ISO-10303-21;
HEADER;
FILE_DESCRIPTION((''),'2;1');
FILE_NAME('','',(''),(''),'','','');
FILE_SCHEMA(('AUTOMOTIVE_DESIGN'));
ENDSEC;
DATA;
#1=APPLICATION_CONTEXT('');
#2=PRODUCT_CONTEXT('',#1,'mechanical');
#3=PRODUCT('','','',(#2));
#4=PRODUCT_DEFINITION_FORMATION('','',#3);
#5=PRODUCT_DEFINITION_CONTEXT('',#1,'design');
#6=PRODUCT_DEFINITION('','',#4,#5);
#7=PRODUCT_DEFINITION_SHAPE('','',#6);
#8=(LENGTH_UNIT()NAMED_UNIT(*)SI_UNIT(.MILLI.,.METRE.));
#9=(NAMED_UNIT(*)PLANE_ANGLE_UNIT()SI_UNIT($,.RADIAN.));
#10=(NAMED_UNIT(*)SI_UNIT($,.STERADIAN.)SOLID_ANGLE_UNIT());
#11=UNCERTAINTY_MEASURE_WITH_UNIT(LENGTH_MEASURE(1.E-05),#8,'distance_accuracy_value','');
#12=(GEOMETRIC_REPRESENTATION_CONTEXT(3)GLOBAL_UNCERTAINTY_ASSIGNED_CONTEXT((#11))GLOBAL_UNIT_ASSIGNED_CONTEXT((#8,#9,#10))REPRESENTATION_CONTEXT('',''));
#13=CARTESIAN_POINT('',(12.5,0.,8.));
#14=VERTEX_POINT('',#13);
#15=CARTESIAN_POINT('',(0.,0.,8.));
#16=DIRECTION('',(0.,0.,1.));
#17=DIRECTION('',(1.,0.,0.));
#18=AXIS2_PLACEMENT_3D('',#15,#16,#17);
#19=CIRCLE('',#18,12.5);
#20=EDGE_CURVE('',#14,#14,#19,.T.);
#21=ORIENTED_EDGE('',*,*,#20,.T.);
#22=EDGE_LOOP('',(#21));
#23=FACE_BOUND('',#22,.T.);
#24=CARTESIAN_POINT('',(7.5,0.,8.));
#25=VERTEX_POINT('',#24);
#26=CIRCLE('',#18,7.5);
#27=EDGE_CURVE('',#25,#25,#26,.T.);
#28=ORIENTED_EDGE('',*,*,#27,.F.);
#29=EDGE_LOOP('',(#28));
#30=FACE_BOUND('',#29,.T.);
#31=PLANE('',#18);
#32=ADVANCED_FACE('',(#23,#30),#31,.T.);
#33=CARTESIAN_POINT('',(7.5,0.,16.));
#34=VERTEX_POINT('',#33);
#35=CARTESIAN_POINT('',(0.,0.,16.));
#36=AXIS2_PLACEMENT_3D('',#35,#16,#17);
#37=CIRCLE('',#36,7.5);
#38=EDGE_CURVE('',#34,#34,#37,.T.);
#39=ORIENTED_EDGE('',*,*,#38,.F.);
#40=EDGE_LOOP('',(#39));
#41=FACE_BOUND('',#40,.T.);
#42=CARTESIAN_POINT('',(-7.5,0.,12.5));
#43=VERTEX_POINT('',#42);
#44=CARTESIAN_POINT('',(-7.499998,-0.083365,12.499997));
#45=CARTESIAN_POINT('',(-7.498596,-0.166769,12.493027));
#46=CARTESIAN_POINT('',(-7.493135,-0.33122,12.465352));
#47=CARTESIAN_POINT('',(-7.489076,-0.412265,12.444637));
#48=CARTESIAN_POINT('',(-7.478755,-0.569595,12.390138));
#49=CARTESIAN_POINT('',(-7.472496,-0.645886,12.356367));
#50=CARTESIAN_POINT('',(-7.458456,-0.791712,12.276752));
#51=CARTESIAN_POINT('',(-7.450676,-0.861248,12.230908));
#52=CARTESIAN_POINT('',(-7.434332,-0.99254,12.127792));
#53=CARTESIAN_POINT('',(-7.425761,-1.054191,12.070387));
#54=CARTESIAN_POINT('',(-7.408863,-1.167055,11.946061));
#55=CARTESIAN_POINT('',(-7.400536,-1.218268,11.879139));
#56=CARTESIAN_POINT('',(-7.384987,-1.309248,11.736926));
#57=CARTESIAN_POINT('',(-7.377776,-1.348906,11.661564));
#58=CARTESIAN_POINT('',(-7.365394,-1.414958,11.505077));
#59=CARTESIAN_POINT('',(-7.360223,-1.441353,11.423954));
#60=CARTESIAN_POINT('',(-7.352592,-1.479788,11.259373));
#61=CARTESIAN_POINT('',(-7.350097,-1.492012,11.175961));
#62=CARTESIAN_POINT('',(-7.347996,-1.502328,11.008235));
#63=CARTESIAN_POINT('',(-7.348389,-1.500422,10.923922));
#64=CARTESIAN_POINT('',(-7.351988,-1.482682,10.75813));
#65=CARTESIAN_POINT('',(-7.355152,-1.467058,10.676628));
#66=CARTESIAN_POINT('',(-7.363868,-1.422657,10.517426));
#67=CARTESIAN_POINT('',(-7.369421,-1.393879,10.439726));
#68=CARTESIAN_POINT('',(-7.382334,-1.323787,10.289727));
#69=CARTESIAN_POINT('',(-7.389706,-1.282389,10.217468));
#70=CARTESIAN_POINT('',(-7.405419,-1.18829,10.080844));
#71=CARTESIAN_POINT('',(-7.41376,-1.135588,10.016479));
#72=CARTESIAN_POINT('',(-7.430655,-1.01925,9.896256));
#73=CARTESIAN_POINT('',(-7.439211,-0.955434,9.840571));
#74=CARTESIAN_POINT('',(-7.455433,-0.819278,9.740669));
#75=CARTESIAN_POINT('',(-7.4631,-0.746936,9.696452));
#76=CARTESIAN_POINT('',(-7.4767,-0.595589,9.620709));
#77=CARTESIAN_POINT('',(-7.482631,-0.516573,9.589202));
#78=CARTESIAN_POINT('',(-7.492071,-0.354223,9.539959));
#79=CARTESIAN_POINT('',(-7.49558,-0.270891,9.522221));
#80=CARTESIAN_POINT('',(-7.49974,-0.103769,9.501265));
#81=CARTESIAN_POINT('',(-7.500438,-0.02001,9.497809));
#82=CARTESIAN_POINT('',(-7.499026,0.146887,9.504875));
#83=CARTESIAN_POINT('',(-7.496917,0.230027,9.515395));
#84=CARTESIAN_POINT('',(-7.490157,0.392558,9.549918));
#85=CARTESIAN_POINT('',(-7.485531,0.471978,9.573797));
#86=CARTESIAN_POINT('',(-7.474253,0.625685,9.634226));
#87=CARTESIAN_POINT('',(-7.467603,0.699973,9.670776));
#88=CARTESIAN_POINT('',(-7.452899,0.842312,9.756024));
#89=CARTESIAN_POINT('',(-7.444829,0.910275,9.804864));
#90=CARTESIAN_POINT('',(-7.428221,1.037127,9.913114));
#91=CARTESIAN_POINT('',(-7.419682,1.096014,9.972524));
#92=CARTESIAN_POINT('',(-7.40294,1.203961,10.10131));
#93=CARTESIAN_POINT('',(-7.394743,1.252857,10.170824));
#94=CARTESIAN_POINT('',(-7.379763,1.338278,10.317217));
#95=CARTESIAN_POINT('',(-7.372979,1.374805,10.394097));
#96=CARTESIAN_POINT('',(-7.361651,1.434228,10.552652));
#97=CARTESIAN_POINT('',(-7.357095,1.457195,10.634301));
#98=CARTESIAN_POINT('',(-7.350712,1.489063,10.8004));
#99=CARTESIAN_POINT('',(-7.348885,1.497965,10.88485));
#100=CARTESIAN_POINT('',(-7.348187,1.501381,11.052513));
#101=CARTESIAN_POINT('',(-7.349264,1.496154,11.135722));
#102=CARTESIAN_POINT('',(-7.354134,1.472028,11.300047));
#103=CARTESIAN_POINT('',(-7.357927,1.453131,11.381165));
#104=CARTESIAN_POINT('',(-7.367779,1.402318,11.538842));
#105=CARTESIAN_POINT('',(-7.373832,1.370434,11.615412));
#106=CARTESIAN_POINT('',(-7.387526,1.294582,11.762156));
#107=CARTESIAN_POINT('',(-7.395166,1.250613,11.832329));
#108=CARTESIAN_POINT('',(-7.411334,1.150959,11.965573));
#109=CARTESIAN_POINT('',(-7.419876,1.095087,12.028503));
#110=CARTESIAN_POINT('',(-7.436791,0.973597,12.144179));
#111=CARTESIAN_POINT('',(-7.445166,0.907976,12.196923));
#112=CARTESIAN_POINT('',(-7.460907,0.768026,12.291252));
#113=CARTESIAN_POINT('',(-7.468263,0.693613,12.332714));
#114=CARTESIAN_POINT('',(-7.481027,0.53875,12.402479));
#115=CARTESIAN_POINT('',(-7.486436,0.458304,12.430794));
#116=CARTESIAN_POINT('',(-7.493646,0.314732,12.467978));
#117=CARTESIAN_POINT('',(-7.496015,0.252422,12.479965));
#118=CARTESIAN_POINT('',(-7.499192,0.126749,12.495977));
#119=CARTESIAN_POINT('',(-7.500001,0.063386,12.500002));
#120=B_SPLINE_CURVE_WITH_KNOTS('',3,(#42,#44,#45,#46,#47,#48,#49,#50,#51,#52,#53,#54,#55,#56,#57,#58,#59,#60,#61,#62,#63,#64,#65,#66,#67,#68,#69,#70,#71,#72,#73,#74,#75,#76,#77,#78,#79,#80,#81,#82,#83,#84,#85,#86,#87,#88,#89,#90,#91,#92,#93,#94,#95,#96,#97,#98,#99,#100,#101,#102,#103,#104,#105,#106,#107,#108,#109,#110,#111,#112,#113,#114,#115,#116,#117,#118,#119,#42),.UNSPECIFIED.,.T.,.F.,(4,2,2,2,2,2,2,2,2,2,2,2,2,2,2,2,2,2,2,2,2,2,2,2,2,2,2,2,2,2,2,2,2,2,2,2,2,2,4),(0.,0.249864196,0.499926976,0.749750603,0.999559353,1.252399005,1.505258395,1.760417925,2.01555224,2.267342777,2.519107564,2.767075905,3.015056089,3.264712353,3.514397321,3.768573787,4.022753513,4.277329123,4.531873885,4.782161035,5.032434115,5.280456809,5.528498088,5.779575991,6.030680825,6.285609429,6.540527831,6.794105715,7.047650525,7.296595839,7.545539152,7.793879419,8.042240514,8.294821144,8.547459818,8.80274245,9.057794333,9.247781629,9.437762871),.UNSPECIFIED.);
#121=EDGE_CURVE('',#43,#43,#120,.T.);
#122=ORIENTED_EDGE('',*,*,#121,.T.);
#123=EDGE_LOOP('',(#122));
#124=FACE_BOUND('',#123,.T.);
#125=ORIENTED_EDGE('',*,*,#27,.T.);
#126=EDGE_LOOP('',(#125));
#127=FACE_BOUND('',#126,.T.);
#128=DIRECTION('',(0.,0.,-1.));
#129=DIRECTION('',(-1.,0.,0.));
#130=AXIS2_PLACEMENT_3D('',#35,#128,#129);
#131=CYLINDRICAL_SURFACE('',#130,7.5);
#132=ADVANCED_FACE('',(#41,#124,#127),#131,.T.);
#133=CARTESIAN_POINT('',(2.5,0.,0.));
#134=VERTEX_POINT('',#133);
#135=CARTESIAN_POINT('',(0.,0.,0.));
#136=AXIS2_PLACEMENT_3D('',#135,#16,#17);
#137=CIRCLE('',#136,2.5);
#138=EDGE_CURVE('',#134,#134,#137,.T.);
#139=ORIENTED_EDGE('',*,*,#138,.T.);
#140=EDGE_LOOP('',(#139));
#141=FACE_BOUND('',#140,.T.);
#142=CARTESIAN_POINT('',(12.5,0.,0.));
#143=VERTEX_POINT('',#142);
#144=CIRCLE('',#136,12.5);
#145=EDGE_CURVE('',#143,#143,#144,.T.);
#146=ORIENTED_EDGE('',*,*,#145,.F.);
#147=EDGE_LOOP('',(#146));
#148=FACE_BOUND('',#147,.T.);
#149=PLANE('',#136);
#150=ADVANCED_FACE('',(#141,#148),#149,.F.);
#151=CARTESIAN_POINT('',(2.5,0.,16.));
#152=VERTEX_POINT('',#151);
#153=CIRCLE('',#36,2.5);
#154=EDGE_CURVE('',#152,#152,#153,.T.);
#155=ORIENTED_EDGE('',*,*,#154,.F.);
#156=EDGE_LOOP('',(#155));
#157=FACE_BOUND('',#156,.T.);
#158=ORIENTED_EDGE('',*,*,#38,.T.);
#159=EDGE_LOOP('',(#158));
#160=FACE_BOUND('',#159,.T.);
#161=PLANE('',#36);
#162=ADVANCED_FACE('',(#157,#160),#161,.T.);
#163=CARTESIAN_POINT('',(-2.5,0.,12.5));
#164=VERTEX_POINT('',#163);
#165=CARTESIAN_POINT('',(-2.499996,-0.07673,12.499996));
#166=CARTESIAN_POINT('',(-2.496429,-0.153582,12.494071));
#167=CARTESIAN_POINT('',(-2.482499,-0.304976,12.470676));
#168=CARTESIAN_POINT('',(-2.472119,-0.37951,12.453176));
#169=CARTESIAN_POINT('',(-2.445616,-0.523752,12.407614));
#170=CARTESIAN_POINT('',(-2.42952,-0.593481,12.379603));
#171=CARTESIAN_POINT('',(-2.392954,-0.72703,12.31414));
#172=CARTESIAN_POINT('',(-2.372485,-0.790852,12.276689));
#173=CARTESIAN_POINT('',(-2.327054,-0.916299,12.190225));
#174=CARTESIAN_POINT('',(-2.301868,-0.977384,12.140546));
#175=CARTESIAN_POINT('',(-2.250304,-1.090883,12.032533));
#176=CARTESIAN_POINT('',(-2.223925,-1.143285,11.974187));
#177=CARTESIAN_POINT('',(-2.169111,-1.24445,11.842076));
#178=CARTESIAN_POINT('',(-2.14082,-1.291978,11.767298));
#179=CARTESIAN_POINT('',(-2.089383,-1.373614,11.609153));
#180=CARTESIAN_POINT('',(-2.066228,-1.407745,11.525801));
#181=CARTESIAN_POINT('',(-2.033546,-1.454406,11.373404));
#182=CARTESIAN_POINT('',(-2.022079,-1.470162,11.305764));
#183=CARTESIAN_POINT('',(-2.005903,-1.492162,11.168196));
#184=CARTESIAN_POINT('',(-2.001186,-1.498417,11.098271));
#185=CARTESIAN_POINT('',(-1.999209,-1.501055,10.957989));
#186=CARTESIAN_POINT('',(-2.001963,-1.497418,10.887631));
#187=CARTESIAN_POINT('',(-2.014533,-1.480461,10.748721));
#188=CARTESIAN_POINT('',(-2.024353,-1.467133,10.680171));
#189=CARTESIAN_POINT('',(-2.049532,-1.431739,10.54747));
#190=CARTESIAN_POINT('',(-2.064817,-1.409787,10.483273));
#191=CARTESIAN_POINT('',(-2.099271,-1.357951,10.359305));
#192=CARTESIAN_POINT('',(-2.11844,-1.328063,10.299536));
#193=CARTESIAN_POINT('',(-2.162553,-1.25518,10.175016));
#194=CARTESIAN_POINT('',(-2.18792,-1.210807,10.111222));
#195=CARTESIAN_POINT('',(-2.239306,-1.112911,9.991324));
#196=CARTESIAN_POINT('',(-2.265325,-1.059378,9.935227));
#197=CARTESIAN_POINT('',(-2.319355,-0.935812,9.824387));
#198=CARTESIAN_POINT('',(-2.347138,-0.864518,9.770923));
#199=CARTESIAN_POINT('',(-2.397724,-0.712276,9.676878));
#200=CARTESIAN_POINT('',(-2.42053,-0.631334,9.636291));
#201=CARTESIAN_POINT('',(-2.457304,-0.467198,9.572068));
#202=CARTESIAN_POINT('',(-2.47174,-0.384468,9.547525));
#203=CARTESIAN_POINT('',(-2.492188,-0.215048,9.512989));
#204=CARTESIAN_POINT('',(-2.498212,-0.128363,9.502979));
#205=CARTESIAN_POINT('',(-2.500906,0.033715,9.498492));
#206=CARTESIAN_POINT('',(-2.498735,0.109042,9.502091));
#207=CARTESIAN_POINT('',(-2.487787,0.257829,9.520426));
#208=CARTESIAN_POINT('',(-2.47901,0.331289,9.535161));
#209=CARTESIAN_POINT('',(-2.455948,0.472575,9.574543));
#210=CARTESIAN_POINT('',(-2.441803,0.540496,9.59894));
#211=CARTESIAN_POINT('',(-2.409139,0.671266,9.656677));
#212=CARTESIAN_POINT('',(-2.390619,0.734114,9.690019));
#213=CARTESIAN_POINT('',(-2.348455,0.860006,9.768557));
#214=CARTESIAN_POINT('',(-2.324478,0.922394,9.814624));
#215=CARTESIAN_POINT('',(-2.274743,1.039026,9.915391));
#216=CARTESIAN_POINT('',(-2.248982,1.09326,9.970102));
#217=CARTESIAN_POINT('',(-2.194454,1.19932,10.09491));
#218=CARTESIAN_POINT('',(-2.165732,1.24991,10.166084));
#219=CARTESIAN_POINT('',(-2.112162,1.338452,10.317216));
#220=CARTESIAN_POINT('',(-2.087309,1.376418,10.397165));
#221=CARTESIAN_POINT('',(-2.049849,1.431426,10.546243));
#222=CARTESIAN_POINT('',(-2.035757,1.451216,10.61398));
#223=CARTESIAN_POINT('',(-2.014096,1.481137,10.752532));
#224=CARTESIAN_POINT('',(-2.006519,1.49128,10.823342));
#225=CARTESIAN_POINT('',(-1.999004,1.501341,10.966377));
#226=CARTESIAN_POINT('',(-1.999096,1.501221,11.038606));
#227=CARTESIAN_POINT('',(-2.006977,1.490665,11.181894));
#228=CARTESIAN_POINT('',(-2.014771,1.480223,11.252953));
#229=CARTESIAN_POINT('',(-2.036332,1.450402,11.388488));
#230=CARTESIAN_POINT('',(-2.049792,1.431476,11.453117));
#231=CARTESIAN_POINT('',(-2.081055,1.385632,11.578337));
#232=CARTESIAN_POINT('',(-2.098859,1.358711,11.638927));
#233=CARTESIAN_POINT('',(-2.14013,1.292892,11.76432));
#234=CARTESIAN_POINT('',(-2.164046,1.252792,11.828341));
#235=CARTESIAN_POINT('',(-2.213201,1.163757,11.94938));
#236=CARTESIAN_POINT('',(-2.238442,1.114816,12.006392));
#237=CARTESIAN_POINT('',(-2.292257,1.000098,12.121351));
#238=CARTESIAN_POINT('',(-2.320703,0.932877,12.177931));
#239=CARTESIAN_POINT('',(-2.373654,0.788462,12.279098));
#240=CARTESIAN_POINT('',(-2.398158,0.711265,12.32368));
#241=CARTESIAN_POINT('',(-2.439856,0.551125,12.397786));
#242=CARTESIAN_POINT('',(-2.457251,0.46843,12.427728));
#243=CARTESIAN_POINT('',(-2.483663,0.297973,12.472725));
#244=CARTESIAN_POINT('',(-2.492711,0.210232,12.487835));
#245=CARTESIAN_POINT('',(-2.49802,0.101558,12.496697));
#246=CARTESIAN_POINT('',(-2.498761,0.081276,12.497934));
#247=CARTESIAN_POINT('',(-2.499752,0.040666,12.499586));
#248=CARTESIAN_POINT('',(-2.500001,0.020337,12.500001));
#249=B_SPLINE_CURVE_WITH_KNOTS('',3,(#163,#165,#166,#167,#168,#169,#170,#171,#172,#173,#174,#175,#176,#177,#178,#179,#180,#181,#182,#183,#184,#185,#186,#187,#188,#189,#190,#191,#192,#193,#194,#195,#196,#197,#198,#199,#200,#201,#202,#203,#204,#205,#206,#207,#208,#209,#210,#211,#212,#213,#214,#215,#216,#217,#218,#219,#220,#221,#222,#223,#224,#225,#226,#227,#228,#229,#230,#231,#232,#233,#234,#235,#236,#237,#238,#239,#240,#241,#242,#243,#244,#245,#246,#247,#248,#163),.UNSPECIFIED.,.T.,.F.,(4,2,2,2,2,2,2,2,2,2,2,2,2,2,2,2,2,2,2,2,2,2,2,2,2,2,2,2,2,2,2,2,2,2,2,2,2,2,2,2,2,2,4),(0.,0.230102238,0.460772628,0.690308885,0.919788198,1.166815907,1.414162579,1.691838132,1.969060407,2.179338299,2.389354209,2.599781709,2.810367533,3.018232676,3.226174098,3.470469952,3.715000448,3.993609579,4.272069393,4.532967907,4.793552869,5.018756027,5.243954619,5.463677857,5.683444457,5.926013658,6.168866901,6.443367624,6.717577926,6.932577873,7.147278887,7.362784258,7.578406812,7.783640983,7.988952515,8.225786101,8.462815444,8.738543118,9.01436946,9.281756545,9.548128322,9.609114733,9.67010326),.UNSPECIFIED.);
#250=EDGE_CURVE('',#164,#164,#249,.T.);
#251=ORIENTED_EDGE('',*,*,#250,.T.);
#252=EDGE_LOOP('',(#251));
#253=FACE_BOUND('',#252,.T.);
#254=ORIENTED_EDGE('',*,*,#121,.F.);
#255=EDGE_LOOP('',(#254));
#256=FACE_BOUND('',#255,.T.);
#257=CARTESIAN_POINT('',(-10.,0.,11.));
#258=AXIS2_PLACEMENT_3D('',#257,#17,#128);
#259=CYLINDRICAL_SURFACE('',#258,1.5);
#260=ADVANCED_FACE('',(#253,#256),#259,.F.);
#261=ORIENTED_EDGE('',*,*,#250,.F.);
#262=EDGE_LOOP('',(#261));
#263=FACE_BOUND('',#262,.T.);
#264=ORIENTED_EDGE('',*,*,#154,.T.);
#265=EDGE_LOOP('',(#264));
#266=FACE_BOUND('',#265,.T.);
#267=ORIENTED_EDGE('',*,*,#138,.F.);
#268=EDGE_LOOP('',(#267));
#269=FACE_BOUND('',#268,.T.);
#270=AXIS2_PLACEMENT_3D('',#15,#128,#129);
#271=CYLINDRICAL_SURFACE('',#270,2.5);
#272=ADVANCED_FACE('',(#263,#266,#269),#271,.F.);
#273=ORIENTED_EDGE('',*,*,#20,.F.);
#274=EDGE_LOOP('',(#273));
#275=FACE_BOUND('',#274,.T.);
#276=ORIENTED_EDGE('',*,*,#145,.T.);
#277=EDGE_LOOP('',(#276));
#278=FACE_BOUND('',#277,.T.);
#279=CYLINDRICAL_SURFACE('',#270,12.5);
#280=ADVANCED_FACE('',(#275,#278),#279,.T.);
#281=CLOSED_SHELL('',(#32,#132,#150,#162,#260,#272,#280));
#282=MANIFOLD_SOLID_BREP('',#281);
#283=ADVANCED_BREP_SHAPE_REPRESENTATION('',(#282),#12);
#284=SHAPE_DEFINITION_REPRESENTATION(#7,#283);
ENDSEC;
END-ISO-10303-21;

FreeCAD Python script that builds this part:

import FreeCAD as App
import Part
import Sketcher

doc = App.newDocument("Part")
body = doc.addObject("PartDesign::Body", "Body")

# Sketch on XY plane
sketch1 = doc.addObject("Sketcher::SketchObject", "Sketch")
body.addObject(sketch1)
sketch1.AttachmentSupport = (doc.XY_Plane, [""])
sketch1.MapMode = "FlatFace"
sketch1.addGeometry([
    Part.Circle(App.Vector(0, 0, 0), App.Vector(0, 0, 1), 12.5),
    Part.Circle(App.Vector(0, 0, 0), App.Vector(0, 0, 1), 2.5),
], False)
sketch1.addConstraint([
    Sketcher.Constraint("Coincident", 0, 3, -1, 1),
    Sketcher.Constraint("Coincident", 1, 3, -1, 1),
    Sketcher.Constraint("Diameter", 0, 25.0),
    Sketcher.Constraint("Diameter", 1, 5.0),
])
pad1 = doc.addObject("PartDesign::Pad", "Pad")
body.addObject(pad1)
pad1.Profile = sketch1
pad1.Length = 8

# Sketch on XY plane
sketch2 = doc.addObject("Sketcher::SketchObject", "Sketch001")
body.addObject(sketch2)
sketch2.AttachmentSupport = (doc.XY_Plane, [""])
sketch2.MapMode = "FlatFace"
sketch2.AttachmentOffset = App.Placement(App.Vector(0, 0, 8), App.Rotation())
sketch2.addGeometry([
    Part.Circle(App.Vector(0, 0, 0), App.Vector(0, 0, 1), 7.5),
    Part.Circle(App.Vector(0, 0, 0), App.Vector(0, 0, 1), 2.5),
], False)
sketch2.addConstraint([
    Sketcher.Constraint("Coincident", 0, 3, -1, 1),
    Sketcher.Constraint("Coincident", 1, 3, -1, 1),
    Sketcher.Constraint("Diameter", 0, 15.0),
    Sketcher.Constraint("Diameter", 1, 5.0),
])
pad2 = doc.addObject("PartDesign::Pad", "Pad001")
body.addObject(pad2)
pad2.Profile = sketch2
pad2.Length = 8

# Sketch on YZ plane
sketch3 = doc.addObject("Sketcher::SketchObject", "Sketch002")
body.addObject(sketch3)
sketch3.AttachmentSupport = (doc.YZ_Plane, [""])
sketch3.MapMode = "FlatFace"
sketch3.addGeometry(Part.Circle(App.Vector(0, 11, 0), App.Vector(0, 0, 1), 1.5), False)
sketch3.addConstraint([
    Sketcher.Constraint("PointOnObject", 0, 3, -2),
    Sketcher.Constraint("Diameter", 0, 3.0),
    Sketcher.Constraint("DistanceY", -1, 1, 0, 3, 11.0),
])
pocket1 = doc.addObject("PartDesign::Pocket", "Pocket")
body.addObject(pocket1)
pocket1.Profile = sketch3
pocket1.Length = 10

doc.recompute()
